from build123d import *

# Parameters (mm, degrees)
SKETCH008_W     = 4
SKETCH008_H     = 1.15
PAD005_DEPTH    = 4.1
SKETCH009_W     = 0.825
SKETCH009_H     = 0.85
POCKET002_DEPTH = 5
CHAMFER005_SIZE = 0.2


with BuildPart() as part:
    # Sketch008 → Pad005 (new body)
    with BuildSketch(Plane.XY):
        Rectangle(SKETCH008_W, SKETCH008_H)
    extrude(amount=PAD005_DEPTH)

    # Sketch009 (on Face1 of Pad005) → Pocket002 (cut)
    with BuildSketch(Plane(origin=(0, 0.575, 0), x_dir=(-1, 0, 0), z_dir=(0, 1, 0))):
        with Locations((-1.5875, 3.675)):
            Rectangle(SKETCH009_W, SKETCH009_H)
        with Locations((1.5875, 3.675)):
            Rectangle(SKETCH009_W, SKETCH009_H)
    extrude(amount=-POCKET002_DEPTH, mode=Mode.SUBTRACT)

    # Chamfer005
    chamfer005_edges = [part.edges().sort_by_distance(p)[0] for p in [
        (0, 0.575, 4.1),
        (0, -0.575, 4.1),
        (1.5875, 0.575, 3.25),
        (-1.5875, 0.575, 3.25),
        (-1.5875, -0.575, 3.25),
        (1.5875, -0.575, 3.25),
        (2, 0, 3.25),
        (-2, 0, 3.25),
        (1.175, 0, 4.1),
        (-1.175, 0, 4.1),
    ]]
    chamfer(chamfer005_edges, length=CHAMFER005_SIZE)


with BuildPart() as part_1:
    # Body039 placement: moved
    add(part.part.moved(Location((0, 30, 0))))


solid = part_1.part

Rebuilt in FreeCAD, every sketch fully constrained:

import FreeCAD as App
import Part
import Sketcher

V = App.Vector
Q = App.Units.Quantity


def edges_at(feature, points):
    """Names of the edges that pass closest to the given points."""
    edges = feature.Shape.Edges
    near = lambda p: min(range(len(edges)), key=lambda i: edges[i].distToShape(Part.Vertex(*p))[0])
    return sorted({f"Edge{near(p) + 1}" for p in points})


def add_polygon(sketch, points):
    """Adds a closed chain of lines whose ends are joined by coincident constraints."""
    first, n = sketch.GeometryCount, len(points)
    for a, b in zip(points, points[1:] + points[:1]):
        sketch.addGeometry(Part.LineSegment(App.Vector(*a, 0), App.Vector(*b, 0)), False)
    for i in range(n):
        sketch.addConstraint(Sketcher.Constraint("Coincident", first + i, 2, first + (i + 1) % n, 1))

doc = App.newDocument("Part")
body = doc.addObject("PartDesign::Body", "Body")

sketch1 = body.newObject("Sketcher::SketchObject", "Sketch")
sketch1.AttachmentSupport = (doc.getObject("XY_Plane"), [""])
sketch1.MapMode = "FlatFace"
add_polygon(sketch1, [(-2, 0.6), (-2, -0.6), (2, -0.6), (2, 0.6)])
sketch1.addConstraint(Sketcher.Constraint("Vertical", 0))
sketch1.addConstraint(Sketcher.Constraint("Horizontal", 1))
sketch1.addConstraint(Sketcher.Constraint("Vertical", 2))
sketch1.addConstraint(Sketcher.Constraint("Horizontal", 3))
sketch1.addConstraint(Sketcher.Constraint("Symmetric", 0, 2, 2, 2, -1, 1))
sketch1.addConstraint(Sketcher.Constraint("DistanceX", 1, 1, 1, 2, Q("4 mm")))
sketch1.addConstraint(Sketcher.Constraint("DistanceY", 0, 2, 0, 1, Q("1.15 mm")))
pad1 = body.newObject("PartDesign::Pad", "Pad")
pad1.Profile = sketch1
pad1.Length = 4.1

sketch2 = body.newObject("Sketcher::SketchObject", "Sketch001")
sketch2.AttachmentSupport = (doc.getObject("XZ_Plane"), [""])
sketch2.MapMode = "FlatFace"
sketch2.AttachmentOffset = App.Placement(V(0, 0, -0.575), App.Rotation())
add_polygon(sketch2, [(2, 4.1), (2, 3.2), (1.2, 3.2), (1.2, 4.1)])
add_polygon(sketch2, [(-1.2, 4.1), (-1.2, 3.2), (-2, 3.2), (-2, 4.1)])
sketch2.addConstraint(Sketcher.Constraint("Vertical", 0))
sketch2.addConstraint(Sketcher.Constraint("Horizontal", 1))
sketch2.addConstraint(Sketcher.Constraint("Vertical", 2))
sketch2.addConstraint(Sketcher.Constraint("Horizontal", 3))
sketch2.addConstraint(Sketcher.Constraint("Vertical", 4))
sketch2.addConstraint(Sketcher.Constraint("Horizontal", 5))
sketch2.addConstraint(Sketcher.Constraint("Vertical", 6))
sketch2.addConstraint(Sketcher.Constraint("Horizontal", 7))
sketch2.addConstraint(Sketcher.Constraint("Symmetric", 1, 2, 4, 2, -2))
sketch2.addConstraint(Sketcher.Constraint("Symmetric", 3, 2, 6, 2, -2))
sketch2.addConstraint(Sketcher.Constraint("DistanceX", -1, 1, 0, 2, Q("2 mm")))
sketch2.addConstraint(Sketcher.Constraint("DistanceY", 0, 2, 0, 1, Q("0.85 mm")))
sketch2.addConstraint(Sketcher.Constraint("DistanceY", -1, 1, 2, 2, Q("4.1 mm")))
sketch2.addConstraint(Sketcher.Constraint("DistanceX", 1, 2, 1, 1, Q("0.825 mm")))
pocket1 = body.newObject("PartDesign::Pocket", "Pocket")
pocket1.Profile = sketch2
pocket1.Length = 5
pocket1.Reversed = True
doc.recompute()

chamfer = body.newObject("PartDesign::Chamfer", "Chamfer")
chamfer.Base = (pocket1, edges_at(pocket1, [
    (0, 0.575, 4.1),
    (0, -0.575, 4.1),
    (1.587, 0.575, 3.25),
    (-1.587, 0.575, 3.25),
    (-1.587, -0.575, 3.25),
    (1.587, -0.575, 3.25),
    (2, 0, 3.25),
    (-2, 0, 3.25),
    (1.175, 0, 4.1),
    (-1.175, 0, 4.1),
]))
chamfer.Size = 0.2
body2 = doc.addObject("PartDesign::Body", "Body001")
doc.recompute()

body.Placement = App.Placement(V(0, 30, 0), App.Rotation(V(0, 0, 1), 0))
boolean = body2.newObject("PartDesign::Boolean", "Boolean")
boolean.Type = "Fuse"
boolean.addObjects([body])

doc.recompute()
